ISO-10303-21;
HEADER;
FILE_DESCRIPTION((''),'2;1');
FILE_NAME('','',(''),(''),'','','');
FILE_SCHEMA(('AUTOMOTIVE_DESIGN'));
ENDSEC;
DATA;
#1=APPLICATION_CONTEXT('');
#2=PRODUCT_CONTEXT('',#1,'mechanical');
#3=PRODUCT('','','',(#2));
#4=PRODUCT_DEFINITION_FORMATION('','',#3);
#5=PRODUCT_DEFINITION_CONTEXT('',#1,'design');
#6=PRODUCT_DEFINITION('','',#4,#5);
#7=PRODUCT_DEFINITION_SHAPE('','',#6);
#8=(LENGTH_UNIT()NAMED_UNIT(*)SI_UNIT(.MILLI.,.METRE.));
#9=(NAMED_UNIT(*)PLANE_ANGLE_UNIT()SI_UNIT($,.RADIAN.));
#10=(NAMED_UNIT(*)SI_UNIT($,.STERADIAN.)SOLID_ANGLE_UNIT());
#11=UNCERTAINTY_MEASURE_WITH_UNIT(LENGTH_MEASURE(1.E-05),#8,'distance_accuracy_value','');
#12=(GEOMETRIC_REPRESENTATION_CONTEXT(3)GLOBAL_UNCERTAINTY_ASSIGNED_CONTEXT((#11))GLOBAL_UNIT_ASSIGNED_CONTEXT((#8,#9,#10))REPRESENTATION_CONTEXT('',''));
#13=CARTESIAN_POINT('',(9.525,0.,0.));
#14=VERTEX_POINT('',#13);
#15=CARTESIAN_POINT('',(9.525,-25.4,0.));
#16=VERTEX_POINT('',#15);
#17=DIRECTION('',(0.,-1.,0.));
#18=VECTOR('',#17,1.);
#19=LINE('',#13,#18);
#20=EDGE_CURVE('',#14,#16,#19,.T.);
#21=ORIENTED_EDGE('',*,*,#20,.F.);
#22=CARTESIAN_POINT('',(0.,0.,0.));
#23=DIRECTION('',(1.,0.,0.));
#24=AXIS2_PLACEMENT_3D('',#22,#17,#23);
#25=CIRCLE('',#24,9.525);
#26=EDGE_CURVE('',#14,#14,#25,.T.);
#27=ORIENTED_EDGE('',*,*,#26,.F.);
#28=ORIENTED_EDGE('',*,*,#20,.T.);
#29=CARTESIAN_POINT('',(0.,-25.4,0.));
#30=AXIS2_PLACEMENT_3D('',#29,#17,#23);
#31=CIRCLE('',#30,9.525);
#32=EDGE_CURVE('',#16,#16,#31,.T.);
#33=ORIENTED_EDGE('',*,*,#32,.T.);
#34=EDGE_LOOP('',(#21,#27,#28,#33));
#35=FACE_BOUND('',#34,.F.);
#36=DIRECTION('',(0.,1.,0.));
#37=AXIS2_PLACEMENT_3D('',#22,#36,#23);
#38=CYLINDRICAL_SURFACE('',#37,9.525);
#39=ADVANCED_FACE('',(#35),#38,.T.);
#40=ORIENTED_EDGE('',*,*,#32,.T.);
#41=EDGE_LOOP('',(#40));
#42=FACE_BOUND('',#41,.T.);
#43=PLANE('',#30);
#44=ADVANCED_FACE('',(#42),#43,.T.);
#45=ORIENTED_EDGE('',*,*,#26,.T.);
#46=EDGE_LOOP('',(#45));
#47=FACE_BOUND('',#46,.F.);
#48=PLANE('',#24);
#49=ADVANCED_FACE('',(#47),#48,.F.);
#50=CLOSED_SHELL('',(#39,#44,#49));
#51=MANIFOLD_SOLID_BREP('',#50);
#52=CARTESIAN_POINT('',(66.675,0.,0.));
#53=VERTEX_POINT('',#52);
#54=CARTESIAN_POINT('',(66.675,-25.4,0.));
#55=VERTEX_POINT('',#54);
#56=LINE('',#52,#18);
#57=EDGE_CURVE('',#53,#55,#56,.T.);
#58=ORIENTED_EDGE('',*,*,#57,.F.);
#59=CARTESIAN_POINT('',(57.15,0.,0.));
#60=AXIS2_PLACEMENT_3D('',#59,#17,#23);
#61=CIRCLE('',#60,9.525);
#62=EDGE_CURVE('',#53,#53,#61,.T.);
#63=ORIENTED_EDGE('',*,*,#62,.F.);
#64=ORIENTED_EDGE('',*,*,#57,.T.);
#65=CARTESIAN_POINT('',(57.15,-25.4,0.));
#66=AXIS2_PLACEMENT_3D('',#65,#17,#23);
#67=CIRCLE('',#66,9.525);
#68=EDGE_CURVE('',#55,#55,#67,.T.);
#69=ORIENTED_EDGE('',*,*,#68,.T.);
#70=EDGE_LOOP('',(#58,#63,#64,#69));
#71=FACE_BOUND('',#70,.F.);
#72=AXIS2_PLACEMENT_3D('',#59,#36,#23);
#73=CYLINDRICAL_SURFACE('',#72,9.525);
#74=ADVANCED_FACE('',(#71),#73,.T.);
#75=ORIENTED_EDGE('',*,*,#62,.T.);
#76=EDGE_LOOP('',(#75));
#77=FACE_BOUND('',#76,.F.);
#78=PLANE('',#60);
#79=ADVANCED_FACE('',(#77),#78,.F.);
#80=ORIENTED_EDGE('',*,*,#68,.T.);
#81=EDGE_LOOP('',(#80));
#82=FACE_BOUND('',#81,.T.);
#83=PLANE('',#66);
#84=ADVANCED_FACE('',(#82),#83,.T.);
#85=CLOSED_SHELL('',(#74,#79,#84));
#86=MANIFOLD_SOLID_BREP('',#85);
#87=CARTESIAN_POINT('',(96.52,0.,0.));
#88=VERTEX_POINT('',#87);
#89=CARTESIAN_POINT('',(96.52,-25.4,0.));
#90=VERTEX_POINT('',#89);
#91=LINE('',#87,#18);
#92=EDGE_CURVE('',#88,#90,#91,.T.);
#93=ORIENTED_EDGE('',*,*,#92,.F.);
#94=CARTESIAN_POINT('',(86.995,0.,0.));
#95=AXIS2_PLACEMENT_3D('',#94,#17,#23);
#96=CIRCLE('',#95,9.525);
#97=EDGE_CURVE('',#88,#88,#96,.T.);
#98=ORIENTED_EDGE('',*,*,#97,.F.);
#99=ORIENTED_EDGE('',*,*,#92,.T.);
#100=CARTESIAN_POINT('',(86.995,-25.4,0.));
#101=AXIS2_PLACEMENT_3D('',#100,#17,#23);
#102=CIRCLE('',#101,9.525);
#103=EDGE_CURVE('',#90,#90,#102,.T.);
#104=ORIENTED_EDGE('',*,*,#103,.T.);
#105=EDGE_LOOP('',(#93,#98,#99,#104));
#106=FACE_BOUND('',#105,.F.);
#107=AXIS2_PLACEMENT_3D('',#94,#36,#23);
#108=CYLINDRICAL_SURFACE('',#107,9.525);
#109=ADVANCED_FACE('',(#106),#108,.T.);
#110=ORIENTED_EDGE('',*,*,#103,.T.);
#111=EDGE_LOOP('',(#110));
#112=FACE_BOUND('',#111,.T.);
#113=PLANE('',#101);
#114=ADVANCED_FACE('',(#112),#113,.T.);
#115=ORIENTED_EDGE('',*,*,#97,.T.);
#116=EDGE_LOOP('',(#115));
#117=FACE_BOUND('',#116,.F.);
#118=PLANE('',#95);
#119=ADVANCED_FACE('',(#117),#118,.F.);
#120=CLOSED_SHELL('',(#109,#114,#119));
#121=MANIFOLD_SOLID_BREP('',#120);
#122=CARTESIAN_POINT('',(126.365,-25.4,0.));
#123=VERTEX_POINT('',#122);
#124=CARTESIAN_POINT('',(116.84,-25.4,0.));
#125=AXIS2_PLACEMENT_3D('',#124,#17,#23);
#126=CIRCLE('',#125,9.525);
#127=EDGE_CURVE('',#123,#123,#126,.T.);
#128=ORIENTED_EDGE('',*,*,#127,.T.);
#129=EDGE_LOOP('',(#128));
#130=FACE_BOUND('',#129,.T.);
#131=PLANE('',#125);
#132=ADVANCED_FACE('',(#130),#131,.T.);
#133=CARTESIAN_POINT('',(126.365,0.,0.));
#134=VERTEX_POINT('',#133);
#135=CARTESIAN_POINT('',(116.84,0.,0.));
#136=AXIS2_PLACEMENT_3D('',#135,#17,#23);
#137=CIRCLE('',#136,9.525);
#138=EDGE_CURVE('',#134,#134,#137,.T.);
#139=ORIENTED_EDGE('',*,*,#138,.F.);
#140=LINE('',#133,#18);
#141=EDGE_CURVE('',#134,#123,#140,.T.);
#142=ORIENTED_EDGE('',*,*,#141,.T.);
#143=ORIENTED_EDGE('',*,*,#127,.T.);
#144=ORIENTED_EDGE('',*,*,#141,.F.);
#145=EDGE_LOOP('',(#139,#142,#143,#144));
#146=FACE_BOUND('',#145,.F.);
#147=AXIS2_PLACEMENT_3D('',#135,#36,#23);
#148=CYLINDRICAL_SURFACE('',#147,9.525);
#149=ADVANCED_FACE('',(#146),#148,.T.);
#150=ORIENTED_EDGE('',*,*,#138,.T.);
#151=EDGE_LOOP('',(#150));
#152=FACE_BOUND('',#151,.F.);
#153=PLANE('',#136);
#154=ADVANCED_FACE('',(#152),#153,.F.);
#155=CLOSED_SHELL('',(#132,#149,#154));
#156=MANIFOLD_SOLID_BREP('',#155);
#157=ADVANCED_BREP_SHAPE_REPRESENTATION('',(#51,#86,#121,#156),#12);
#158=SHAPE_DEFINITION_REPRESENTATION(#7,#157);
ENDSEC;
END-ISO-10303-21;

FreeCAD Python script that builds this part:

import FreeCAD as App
import Part
import Sketcher

V = App.Vector
Q = App.Units.Quantity

doc = App.newDocument("Part")
body = doc.addObject("PartDesign::Body", "Body")
body.AllowCompound = True

# Sketch on XZ plane
sketch1 = doc.addObject("Sketcher::SketchObject", "Sketch")
body.addObject(sketch1)
sketch1.AttachmentSupport = (doc.XZ_Plane, [""])
sketch1.MapMode = "FlatFace"
sketch1.addGeometry([
    Part.Circle(V(86.995, 0, 0), V(0, 0, 1), 9.525),
    Part.Circle(V(116.84, 0, 0), V(0, 0, 1), 9.525),
    Part.Circle(V(57.15, 0, 0), V(0, 0, 1), 9.525),
    Part.Circle(V(0, 0, 0), V(0, 0, 1), 9.525),
], False)
sketch1.addConstraint([
    Sketcher.Constraint("Coincident", 3, 3, -1, 1),
    Sketcher.Constraint("Equal", 0, 1),
    Sketcher.Constraint("Equal", 1, 2),
    Sketcher.Constraint("Equal", 2, 3),
    Sketcher.Constraint("PointOnObject", 0, 3, -1),
    Sketcher.Constraint("PointOnObject", 1, 3, -1),
    Sketcher.Constraint("PointOnObject", 2, 3, -1),
    Sketcher.Constraint("Diameter", 0, Q("0.75 in")),
    Sketcher.Constraint("DistanceX", -1, 1, 1, 3, Q("4.6 in")),
    Sketcher.Constraint("DistanceX", -1, 1, 2, 3, Q("2.25 in")),
    Sketcher.Constraint("DistanceX", -1, 1, 0, 3, Q("3.425 in")),
])
pad1 = doc.addObject("PartDesign::Pad", "Pad")
body.addObject(pad1)
pad1.Profile = sketch1
pad1.Length = Q("1 in")

doc.recompute()
